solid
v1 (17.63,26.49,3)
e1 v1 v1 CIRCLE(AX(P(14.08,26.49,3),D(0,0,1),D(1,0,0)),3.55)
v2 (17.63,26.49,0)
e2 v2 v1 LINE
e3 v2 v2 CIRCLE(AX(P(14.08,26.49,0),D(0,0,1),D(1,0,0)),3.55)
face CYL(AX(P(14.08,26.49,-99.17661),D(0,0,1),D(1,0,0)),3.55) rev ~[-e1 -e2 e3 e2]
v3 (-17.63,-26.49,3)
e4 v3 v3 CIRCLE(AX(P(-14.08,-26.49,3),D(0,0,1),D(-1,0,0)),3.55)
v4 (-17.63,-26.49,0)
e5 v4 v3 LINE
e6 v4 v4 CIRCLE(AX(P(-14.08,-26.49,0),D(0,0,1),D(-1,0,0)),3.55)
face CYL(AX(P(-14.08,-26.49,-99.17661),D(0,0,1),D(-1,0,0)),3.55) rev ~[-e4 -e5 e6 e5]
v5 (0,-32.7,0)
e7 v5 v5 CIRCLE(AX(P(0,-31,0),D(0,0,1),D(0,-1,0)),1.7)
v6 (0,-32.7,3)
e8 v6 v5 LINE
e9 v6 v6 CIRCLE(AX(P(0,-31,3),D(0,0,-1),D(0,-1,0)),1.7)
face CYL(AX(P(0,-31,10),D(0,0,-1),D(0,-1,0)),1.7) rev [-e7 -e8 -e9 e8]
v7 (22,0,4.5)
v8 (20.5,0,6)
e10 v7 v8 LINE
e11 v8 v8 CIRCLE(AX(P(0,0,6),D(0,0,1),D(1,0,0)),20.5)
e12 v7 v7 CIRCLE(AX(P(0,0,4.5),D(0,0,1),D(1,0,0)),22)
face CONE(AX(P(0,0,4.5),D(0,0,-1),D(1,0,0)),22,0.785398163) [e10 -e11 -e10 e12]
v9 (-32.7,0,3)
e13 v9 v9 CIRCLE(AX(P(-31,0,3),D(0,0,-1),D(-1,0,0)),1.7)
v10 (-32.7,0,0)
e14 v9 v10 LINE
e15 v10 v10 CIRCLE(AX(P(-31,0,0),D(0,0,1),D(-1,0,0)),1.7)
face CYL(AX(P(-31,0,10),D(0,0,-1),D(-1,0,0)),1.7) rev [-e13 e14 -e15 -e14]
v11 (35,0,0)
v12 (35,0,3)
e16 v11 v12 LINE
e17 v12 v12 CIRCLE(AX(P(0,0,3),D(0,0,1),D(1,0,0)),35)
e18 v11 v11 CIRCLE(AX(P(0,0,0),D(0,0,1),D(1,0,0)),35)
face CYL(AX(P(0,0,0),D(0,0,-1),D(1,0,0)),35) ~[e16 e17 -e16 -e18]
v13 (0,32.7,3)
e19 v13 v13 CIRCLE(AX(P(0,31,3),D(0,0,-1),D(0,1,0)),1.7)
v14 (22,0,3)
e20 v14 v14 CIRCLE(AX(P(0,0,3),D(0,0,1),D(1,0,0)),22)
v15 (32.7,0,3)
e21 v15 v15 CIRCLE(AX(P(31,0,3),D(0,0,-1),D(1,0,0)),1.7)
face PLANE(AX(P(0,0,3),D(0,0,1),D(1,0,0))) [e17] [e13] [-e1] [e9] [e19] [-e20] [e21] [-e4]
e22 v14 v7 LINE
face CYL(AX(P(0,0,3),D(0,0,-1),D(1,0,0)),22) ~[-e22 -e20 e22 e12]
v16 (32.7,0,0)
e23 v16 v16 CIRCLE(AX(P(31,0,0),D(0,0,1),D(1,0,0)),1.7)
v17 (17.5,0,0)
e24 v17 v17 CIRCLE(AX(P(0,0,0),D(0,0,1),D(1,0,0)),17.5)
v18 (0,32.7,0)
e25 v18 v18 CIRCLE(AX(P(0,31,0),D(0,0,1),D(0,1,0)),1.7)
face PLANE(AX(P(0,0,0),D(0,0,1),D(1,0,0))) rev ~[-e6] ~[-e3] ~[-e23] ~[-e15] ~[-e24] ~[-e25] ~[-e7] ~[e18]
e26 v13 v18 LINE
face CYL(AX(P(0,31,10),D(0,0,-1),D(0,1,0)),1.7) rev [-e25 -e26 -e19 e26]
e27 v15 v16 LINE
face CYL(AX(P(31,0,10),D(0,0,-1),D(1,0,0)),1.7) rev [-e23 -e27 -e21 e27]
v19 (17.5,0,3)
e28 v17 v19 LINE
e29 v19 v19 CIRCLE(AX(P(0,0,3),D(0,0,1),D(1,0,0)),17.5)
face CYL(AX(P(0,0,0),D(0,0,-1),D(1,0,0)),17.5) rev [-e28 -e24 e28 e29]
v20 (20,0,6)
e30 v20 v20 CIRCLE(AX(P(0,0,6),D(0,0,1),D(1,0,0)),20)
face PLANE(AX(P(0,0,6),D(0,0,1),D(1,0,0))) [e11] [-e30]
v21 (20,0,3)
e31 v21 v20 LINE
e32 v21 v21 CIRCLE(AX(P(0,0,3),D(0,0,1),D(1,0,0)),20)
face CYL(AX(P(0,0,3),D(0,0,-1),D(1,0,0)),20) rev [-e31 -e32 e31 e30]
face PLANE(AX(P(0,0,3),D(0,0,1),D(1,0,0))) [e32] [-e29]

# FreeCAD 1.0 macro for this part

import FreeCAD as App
import Part
import Sketcher
Q = App.Units.Quantity


def edges_at(feature, points):
    """Names of the edges that pass closest to the given points."""
    edges = feature.Shape.Edges
    near = lambda p: min(range(len(edges)), key=lambda i: edges[i].distToShape(Part.Vertex(*p))[0])
    return sorted({f"Edge{near(p) + 1}" for p in points})


def add_polygon(sketch, points):
    """Adds a closed chain of lines whose ends are joined by coincident constraints."""
    first, n = sketch.GeometryCount, len(points)
    for a, b in zip(points, points[1:] + points[:1]):
        sketch.addGeometry(Part.LineSegment(App.Vector(*a, 0), App.Vector(*b, 0)), False)
    for i in range(n):
        sketch.addConstraint(Sketcher.Constraint("Coincident", first + i, 2, first + (i + 1) % n, 1))

doc = App.newDocument("Part")
body = doc.addObject("PartDesign::Body", "Body")

sketch1 = doc.addObject("Sketcher::SketchObject", "Sketch")
body.addObject(sketch1)
sketch1.AttachmentSupport = (doc.XY_Plane, [""])
sketch1.MapMode = "FlatFace"
sketch1.addGeometry([
    Part.Circle(App.Vector(0, 0, 0), App.Vector(0, 0, 1), 35),
    Part.Circle(App.Vector(0, 0, 0), App.Vector(0, 0, 1), 17.5),
], False)
sketch1.addConstraint([
    Sketcher.Constraint("Coincident", 0, 3, -1, 1),
    Sketcher.Constraint("Coincident", 1, 3, -1, 1),
    Sketcher.Constraint("Diameter", 0, Q("70 mm")),
    Sketcher.Constraint("Diameter", 1, Q("35 mm")),
])
pad1 = doc.addObject("PartDesign::Pad", "Pad")
body.addObject(pad1)
pad1.Profile = sketch1
pad1.Length = 3

sketch2 = doc.addObject("Sketcher::SketchObject", "Sketch001")
body.addObject(sketch2)
sketch2.AttachmentSupport = (doc.XY_Plane, [""])
sketch2.MapMode = "FlatFace"
sketch2.AttachmentOffset = App.Placement(App.Vector(0, 0, 3), App.Rotation())
sketch2.addGeometry([
    Part.Circle(App.Vector(0, 0, 0), App.Vector(0, 0, 1), 22),
    Part.Circle(App.Vector(0, 0, 0), App.Vector(0, 0, 1), 20),
], False)
sketch2.addConstraint([
    Sketcher.Constraint("Coincident", 0, 3, -1, 1),
    Sketcher.Constraint("Coincident", 1, 3, -1, 1),
    Sketcher.Constraint("Diameter", 0, Q("44 mm")),
    Sketcher.Constraint("Diameter", 1, Q("40 mm")),
])
pad2 = doc.addObject("PartDesign::Pad", "Pad001")
body.addObject(pad2)
pad2.Profile = sketch2
pad2.Length = 3
doc.recompute()

chamfer = doc.addObject("PartDesign::Chamfer", "Chamfer")
body.addObject(chamfer)
chamfer.Base = (pad2, edges_at(pad2, [(-22, 0, 6)]))
chamfer.Size = 1.5

sketch3 = doc.addObject("Sketcher::SketchObject", "Sketch002")
body.addObject(sketch3)
sketch3.AttachmentSupport = (doc.YZ_Plane, [""])
sketch3.MapMode = "FlatFace"
add_polygon(sketch3, [(31, 11.021463), (31, 0), (32.7, 0), (32.7, 10)])
sketch3.addGeometry(Part.LineSegment(App.Vector(31, 0, 0), App.Vector(31, 11.021463, 0)), True)
sketch3.addConstraint([
    Sketcher.Constraint("Vertical", 0),
    Sketcher.Constraint("Horizontal", 1),
    Sketcher.Constraint("Vertical", 2),
    Sketcher.Constraint("Vertical", 4),
    Sketcher.Constraint("Coincident", 4, 1, 0, 2),
    Sketcher.Constraint("PointOnObject", 0, 2, -1),
    Sketcher.Constraint("Equal", 0, 4),
    Sketcher.Constraint("DistanceY", 2, 1, 2, 2, Q("10 mm")),
    Sketcher.Constraint("Angle", 3, Q("149 deg")),
    Sketcher.Constraint("DistanceX", 1, 1, 1, 2, Q("1.7 mm")),
    Sketcher.Constraint("DistanceX", -1, 1, 0, 2, Q("31 mm")),
])
groove = doc.addObject("PartDesign::Groove", "Groove")
body.addObject(groove)
groove.Profile = sketch3
groove.ReferenceAxis = (sketch3, ["Axis0"])
groove.Angle = 360
doc.recompute()

polarpattern = doc.addObject("PartDesign::PolarPattern", "PolarPattern")
body.addObject(polarpattern)
polarpattern.Originals = [groove]
polarpattern.Axis = (doc.Z_Axis, [""])
polarpattern.Angle = 360
polarpattern.Occurrences = 4
body.Tip = polarpattern

sketch4 = doc.addObject("Sketcher::SketchObject", "Sketch003")
body.addObject(sketch4)
sketch4.AttachmentSupport = (doc.XY_Plane, [""])
sketch4.MapMode = "FlatFace"
sketch4.addGeometry(Part.Circle(App.Vector(14.08, 26.49, 0), App.Vector(0, 0, 1), 3.55), False)
sketch4.addConstraint([
    Sketcher.Constraint("Diameter", 0, Q("7.1 mm")),
    Sketcher.Constraint("DistanceX", -1, 1, 0, 3, Q("14.08 mm")),
    Sketcher.Constraint("DistanceY", -1, 1, 0, 3, Q("26.49 mm")),
])
doc.recompute()
hole = doc.addObject("PartDesign::Hole", "Hole")
body.addObject(hole)
hole.Profile = sketch4
hole.ThreadType = "None"
hole.Diameter = 7.1
hole.DepthType = "ThroughAll"
hole.Reversed = True
doc.recompute()

polarpattern2 = doc.addObject("PartDesign::PolarPattern", "PolarPattern001")
body.addObject(polarpattern2)
polarpattern2.Originals = [hole]
polarpattern2.Axis = (doc.Z_Axis, [""])
polarpattern2.Angle = 360
polarpattern2.Occurrences = 2
body.Tip = polarpattern2

doc.recompute()
